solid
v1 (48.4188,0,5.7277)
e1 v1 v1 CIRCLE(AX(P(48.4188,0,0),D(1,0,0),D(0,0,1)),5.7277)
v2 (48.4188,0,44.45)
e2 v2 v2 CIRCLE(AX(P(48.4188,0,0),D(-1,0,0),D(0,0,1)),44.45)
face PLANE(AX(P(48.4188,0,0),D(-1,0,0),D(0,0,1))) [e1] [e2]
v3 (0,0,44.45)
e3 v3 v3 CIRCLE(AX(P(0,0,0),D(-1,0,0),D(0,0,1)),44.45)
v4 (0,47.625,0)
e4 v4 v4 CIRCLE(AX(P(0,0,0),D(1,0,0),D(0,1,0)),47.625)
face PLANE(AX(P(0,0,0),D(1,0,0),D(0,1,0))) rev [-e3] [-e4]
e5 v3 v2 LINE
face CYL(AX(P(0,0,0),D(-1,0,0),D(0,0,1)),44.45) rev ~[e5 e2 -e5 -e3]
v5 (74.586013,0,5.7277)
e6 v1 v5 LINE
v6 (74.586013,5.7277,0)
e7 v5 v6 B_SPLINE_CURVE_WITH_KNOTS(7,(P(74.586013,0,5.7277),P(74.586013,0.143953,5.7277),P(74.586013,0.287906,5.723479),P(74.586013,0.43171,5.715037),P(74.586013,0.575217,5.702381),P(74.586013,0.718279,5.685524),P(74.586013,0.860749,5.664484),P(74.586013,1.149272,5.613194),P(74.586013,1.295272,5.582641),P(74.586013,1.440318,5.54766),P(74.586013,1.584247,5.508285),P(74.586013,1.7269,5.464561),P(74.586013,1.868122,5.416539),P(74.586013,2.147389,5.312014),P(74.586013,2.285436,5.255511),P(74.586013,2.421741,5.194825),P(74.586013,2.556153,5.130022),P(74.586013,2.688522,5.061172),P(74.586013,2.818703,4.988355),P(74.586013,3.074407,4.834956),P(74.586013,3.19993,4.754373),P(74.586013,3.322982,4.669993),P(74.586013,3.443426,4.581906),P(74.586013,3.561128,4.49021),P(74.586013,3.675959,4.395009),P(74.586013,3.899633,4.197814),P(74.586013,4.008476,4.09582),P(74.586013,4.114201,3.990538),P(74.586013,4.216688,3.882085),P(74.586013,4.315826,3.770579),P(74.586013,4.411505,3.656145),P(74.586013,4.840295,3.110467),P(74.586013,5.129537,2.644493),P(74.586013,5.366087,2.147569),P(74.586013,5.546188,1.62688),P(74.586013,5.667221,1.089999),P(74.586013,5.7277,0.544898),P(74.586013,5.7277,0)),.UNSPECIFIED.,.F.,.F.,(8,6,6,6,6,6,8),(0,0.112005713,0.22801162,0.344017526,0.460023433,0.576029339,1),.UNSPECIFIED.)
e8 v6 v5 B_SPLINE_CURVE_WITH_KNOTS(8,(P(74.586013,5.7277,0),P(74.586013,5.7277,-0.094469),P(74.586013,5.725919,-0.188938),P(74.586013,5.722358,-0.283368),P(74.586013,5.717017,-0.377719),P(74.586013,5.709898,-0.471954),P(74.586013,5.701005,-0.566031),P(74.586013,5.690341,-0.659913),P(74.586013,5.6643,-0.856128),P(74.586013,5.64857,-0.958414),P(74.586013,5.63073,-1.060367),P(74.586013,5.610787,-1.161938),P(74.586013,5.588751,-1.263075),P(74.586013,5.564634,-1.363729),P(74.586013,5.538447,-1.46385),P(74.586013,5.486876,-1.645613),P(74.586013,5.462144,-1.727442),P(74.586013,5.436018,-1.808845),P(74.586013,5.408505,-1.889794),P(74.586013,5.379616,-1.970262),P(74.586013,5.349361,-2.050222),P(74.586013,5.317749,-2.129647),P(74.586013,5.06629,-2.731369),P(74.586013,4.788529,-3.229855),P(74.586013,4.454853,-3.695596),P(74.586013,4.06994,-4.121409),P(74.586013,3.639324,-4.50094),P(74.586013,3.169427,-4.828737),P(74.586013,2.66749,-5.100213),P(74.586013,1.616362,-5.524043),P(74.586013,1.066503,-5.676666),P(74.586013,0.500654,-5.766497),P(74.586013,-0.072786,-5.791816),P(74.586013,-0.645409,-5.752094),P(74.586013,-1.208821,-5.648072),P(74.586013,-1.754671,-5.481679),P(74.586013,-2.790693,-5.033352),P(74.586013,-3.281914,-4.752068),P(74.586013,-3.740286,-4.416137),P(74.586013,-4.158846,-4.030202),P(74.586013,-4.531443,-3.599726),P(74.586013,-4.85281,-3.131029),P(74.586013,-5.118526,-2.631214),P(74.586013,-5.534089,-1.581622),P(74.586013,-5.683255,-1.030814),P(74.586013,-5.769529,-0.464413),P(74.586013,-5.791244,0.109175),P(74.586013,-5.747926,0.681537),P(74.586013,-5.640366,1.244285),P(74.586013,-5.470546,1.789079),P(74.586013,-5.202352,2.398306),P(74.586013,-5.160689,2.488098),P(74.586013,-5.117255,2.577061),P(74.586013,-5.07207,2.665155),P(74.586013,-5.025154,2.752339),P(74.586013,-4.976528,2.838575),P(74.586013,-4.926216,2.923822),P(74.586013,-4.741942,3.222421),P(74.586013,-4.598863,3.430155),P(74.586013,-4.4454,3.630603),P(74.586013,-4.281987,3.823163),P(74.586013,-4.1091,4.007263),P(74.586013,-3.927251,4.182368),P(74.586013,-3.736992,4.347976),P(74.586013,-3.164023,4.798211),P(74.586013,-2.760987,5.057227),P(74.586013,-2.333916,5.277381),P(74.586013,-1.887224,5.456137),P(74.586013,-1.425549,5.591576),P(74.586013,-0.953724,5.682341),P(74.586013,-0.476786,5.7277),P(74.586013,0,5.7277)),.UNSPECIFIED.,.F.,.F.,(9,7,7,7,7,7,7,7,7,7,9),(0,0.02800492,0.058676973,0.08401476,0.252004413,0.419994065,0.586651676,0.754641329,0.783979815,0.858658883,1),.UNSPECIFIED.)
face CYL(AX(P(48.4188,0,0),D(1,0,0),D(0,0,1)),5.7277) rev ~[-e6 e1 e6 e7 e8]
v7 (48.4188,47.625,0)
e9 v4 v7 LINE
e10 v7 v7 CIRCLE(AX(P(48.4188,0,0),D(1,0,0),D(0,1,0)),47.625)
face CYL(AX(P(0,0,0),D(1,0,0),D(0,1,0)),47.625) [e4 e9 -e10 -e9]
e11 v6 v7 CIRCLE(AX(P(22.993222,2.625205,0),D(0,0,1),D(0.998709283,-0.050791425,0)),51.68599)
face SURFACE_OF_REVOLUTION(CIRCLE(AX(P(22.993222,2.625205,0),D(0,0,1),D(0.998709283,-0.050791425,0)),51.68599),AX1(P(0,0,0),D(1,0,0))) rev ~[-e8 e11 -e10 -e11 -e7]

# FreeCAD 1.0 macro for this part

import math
import FreeCAD as App
import Part
import Sketcher
from FreeCAD import Vector
Q = App.Units.Quantity

doc = App.newDocument("Part")
body = doc.addObject("PartDesign::Body", "Body")

# Sketch on XY plane
sketch1 = body.newObject("Sketcher::SketchObject", "Sketch")
sketch1.AttachmentSupport = (doc.getObject("XY_Plane"), [""])
sketch1.MapMode = "FlatFace"
sketch1.addGeometry([
    Part.LineSegment(Vector(0, 48, 0), Vector(0, 0, 0)),
    Part.LineSegment(Vector(0, 0, 0), Vector(75, 0, 0)),
    Part.ArcOfCircle(Part.Circle(Vector(23, 3, 0), Vector(0, 0, 1), 52), math.radians(-3), math.radians(61)),
    Part.LineSegment(Vector(48, 48, 0), Vector(0, 48, 0)),
], False)
sketch1.addConstraint([
    Sketcher.Constraint("Coincident", 0, 2, 1, 1),
    Sketcher.Constraint("Coincident", 1, 2, 2, 1),
    Sketcher.Constraint("Coincident", 2, 2, 3, 1),
    Sketcher.Constraint("Coincident", 3, 2, 0, 1),
    Sketcher.Constraint("Vertical", 0),
    Sketcher.Constraint("Horizontal", 1),
    Sketcher.Constraint("Horizontal", 3),
    Sketcher.Constraint("Coincident", 0, 2, -1, 1),
    Sketcher.Constraint("DistanceX", 3, 2, 3, 1, Q("1.906252 in")),
    Sketcher.Constraint("DistanceY", 0, 2, 0, 1, Q("1.875 in")),
    Sketcher.Constraint("DistanceX", 1, 1, 1, 2, Q("2.9375 in")),
    Sketcher.Constraint("Radius", 2, 51.686),
])
revolution = body.newObject("PartDesign::Revolution", "Revolution")
revolution.Profile = sketch1
revolution.ReferenceAxis = (sketch1, ["H_Axis"])
revolution.Angle = 360

# Sketch on YZ plane
sketch2 = body.newObject("Sketcher::SketchObject", "Sketch001")
sketch2.AttachmentSupport = (doc.getObject("YZ_Plane"), [""])
sketch2.MapMode = "FlatFace"
sketch2.addGeometry(Part.Circle(Vector(0, 0, 0), Vector(0, 0, 1), 44), False)
sketch2.addConstraint([
    Sketcher.Constraint("Coincident", 0, 3, -1, 1),
    Sketcher.Constraint("Diameter", 0, Q("3.5 in")),
])
pocket1 = body.newObject("PartDesign::Pocket", "Pocket")
pocket1.Profile = sketch2
pocket1.Length = Q("1.906252 in")
pocket1.Reversed = True

# Sketch on YZ plane
sketch3 = body.newObject("Sketcher::SketchObject", "Sketch002")
sketch3.AttachmentSupport = (doc.getObject("YZ_Plane"), [""])
sketch3.MapMode = "FlatFace"
sketch3.AttachmentOffset = App.Placement(Vector(0, 0, 1.906252 * 25.4), App.Rotation())
sketch3.addGeometry(Part.Circle(Vector(0, 0, 0), Vector(0, 0, 1), 6), False)
sketch3.addConstraint([
    Sketcher.Constraint("Coincident", 0, 3, -1, 1),
    Sketcher.Constraint("Diameter", 0, Q("0.451 in")),
])
doc.recompute()
hole = body.newObject("PartDesign::Hole", "Hole")
hole.Profile = sketch3
hole.ThreadType = "None"
hole.Diameter = Q("0.451 in")
hole.DepthType = "ThroughAll"
hole.Reversed = True

doc.recompute()
